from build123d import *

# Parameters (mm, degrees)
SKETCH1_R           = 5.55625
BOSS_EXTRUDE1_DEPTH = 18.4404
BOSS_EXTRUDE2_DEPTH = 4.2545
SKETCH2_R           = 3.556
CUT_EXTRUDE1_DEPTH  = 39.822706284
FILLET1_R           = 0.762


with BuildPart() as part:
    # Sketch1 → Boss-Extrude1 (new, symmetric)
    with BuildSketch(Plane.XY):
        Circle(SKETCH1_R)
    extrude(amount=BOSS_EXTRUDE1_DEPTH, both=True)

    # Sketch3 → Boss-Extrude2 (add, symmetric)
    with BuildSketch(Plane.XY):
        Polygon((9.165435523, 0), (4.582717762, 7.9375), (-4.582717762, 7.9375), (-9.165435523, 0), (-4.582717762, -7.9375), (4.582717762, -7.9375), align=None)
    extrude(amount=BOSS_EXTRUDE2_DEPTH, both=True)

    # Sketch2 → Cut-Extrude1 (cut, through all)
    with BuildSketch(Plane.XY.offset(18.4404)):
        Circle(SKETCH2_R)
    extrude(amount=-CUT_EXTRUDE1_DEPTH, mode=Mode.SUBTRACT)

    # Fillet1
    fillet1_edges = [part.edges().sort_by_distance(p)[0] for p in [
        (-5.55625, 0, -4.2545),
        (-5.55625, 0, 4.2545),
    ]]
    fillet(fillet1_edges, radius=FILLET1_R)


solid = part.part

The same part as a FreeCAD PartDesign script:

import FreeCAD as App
import Part
import Sketcher

V = App.Vector
Q = App.Units.Quantity


def edges_at(feature, points):
    """Names of the edges that pass closest to the given points."""
    edges = feature.Shape.Edges
    near = lambda p: min(range(len(edges)), key=lambda i: edges[i].distToShape(Part.Vertex(*p))[0])
    return sorted({f"Edge{near(p) + 1}" for p in points})

doc = App.newDocument("Part")
body = doc.addObject("PartDesign::Body", "Body")

# Sketch on XY plane
sketch1 = body.newObject("Sketcher::SketchObject", "Sketch")
sketch1.AttachmentSupport = (doc.getObject("XY_Plane"), [""])
sketch1.MapMode = "FlatFace"
sketch1.addGeometry(Part.Circle(V(0, 0, 0), V(0, 0, 1), 6), False)
sketch1.addConstraint(Sketcher.Constraint("Coincident", 0, 3, -1, 1))
sketch1.addConstraint(Sketcher.Constraint("Diameter", 0, Q("0.4375 in")))
pad1 = body.newObject("PartDesign::Pad", "Pad")
pad1.Profile = sketch1
pad1.Length = Q("1.452 in")
pad1.Midplane = True

# Sketch on XY plane
sketch2 = body.newObject("Sketcher::SketchObject", "Sketch001")
sketch2.AttachmentSupport = (doc.getObject("XY_Plane"), [""])
sketch2.MapMode = "FlatFace"
sketch2.addGeometry(Part.LineSegment(V(9, 0, 0), V(5, 8, 0)), False)
sketch2.addGeometry(Part.LineSegment(V(5, 8, 0), V(-5, 8, 0)), False)
sketch2.addGeometry(Part.LineSegment(V(-5, 8, 0), V(-9, 0, 0)), False)
sketch2.addGeometry(Part.LineSegment(V(-9, 0, 0), V(-5, -8, 0)), False)
sketch2.addGeometry(Part.LineSegment(V(-5, -8, 0), V(5, -8, 0)), False)
sketch2.addGeometry(Part.LineSegment(V(5, -8, 0), V(9, 0, 0)), False)
sketch2.addConstraint(Sketcher.Constraint("Coincident", 0, 2, 1, 1))
sketch2.addConstraint(Sketcher.Constraint("Coincident", 1, 2, 2, 1))
sketch2.addConstraint(Sketcher.Constraint("Coincident", 2, 2, 3, 1))
sketch2.addConstraint(Sketcher.Constraint("Coincident", 3, 2, 4, 1))
sketch2.addConstraint(Sketcher.Constraint("Coincident", 4, 2, 5, 1))
sketch2.addConstraint(Sketcher.Constraint("Coincident", 5, 2, 0, 1))
sketch2.addConstraint(Sketcher.Constraint("Horizontal", 1))
sketch2.addConstraint(Sketcher.Constraint("Horizontal", 4))
sketch2.addConstraint(Sketcher.Constraint("Symmetric", 0, 2, 3, 2, -1, 1))
sketch2.addConstraint(Sketcher.Constraint("Symmetric", 2, 2, 5, 2, -1, 1))
sketch2.addConstraint(Sketcher.Constraint("PointOnObject", 2, 2, -1))
sketch2.addConstraint(Sketcher.Constraint("Parallel", 2, 5))
sketch2.addConstraint(Sketcher.Constraint("Vertical", 1, 2, 3, 2))
sketch2.addConstraint(Sketcher.Constraint("Angle", 0, Q("120 deg")))
sketch2.addConstraint(Sketcher.Constraint("DistanceY", -1, 1, 0, 2, Q("0.3125 in")))
sketch2.addConstraint(Sketcher.Constraint("DistanceX", 1, 2, 1, 1, Q("9.165436 mm")))
pad2 = body.newObject("PartDesign::Pad", "Pad001")
pad2.Profile = sketch2
pad2.Length = Q("0.335 in")
pad2.Midplane = True

# Sketch on XY plane
sketch3 = body.newObject("Sketcher::SketchObject", "Sketch002")
sketch3.AttachmentSupport = (doc.getObject("XY_Plane"), [""])
sketch3.MapMode = "FlatFace"
sketch3.AttachmentOffset = App.Placement(V(0, 0, 0.726 * 25.4), App.Rotation())
sketch3.addGeometry(Part.Circle(V(0, 0, 0), V(0, 0, 1), 3.6), False)
sketch3.addConstraint(Sketcher.Constraint("Coincident", 0, 3, -1, 1))
sketch3.addConstraint(Sketcher.Constraint("Diameter", 0, Q("0.28 in")))
pocket1 = body.newObject("PartDesign::Pocket", "Pocket")
pocket1.Profile = sketch3
pocket1.Type = "ThroughAll"
doc.recompute()

fillet = body.newObject("PartDesign::Fillet", "Fillet")
fillet.Base = (pocket1, edges_at(pocket1, [(-5.556, 0, -4.255), (-5.556, 0, 4.255)]))
fillet.Radius = Q("0.03 in")

doc.recompute()
